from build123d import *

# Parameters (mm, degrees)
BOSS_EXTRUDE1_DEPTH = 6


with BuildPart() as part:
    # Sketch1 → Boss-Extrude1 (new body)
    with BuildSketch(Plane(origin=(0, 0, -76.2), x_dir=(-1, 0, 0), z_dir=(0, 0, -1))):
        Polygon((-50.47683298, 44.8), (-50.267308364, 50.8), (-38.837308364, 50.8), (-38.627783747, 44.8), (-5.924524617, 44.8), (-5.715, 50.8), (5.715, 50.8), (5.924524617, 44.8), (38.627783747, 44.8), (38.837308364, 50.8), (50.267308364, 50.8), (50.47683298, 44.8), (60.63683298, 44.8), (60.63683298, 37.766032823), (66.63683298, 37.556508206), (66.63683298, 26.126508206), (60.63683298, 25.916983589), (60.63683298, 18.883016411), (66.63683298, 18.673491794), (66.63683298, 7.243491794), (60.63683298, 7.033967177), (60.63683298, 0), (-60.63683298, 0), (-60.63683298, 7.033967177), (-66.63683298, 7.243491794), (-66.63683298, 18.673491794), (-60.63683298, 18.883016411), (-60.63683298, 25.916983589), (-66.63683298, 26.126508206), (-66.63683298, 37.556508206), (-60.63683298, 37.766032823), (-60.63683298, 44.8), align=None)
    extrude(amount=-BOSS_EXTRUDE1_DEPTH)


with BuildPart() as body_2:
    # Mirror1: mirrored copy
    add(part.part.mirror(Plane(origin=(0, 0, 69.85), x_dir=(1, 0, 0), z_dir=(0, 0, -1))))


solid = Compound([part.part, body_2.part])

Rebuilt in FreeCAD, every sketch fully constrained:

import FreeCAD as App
import Part
import Sketcher
from FreeCAD import Vector
Q = App.Units.Quantity


def add_polygon(sketch, points):
    """Adds a closed chain of lines whose ends are joined by coincident constraints."""
    first, n = sketch.GeometryCount, len(points)
    for a, b in zip(points, points[1:] + points[:1]):
        sketch.addGeometry(Part.LineSegment(App.Vector(*a, 0), App.Vector(*b, 0)), False)
    for i in range(n):
        sketch.addConstraint(Sketcher.Constraint("Coincident", first + i, 2, first + (i + 1) % n, 1))

doc = App.newDocument("Part")
body = doc.addObject("PartDesign::Body", "Body")

sketch1 = doc.addObject("Sketcher::SketchObject", "Sketch")
body.addObject(sketch1)
sketch1.AttachmentSupport = (doc.XY_Plane, [""])
sketch1.MapMode = "FlatFace"
sketch1.AttachmentOffset = App.Placement(Vector(0, 0, -3 * 25.4), App.Rotation())
add_polygon(sketch1, [(50, 51), (50, 45), (61, 45), (61, 38), (67, 38), (67, 26), (61, 26), (61, 19), (67, 19), (67, 7), (61, 7), (61, 0), (-61, 0), (-61, 7), (-67, 7), (-67, 19), (-61, 19), (-61, 26), (-67, 26), (-67, 38), (-61, 38), (-61, 45), (-50, 45), (-50, 51), (-39, 51), (-39, 45), (-6, 45), (-6, 51), (6, 51), (6, 45), (39, 45), (39, 51)])
sketch1.addConstraint([
    Sketcher.Constraint("Horizontal", 1),
    Sketcher.Constraint("Vertical", 2),
    Sketcher.Constraint("Vertical", 4),
    Sketcher.Constraint("Vertical", 6),
    Sketcher.Constraint("Vertical", 8),
    Sketcher.Constraint("Vertical", 10),
    Sketcher.Constraint("Horizontal", 11),
    Sketcher.Constraint("Vertical", 12),
    Sketcher.Constraint("Vertical", 14),
    Sketcher.Constraint("Vertical", 16),
    Sketcher.Constraint("Vertical", 18),
    Sketcher.Constraint("Vertical", 20),
    Sketcher.Constraint("Horizontal", 21),
    Sketcher.Constraint("Horizontal", 23),
    Sketcher.Constraint("Horizontal", 25),
    Sketcher.Constraint("Horizontal", 27),
    Sketcher.Constraint("Horizontal", 29),
    Sketcher.Constraint("Horizontal", 31),
    Sketcher.Constraint("Symmetric", 10, 2, 11, 2, -1, 1),
    Sketcher.Constraint("Symmetric", 8, 2, 13, 2, -2),
    Sketcher.Constraint("Symmetric", 6, 2, 15, 2, -2),
    Sketcher.Constraint("Symmetric", 4, 2, 17, 2, -2),
    Sketcher.Constraint("Symmetric", 2, 2, 19, 2, -2),
    Sketcher.Constraint("Symmetric", 0, 2, 21, 2, -2),
    Sketcher.Constraint("Symmetric", 25, 2, 28, 2, -2),
    Sketcher.Constraint("Symmetric", 23, 2, 30, 2, -2),
    Sketcher.Constraint("Perpendicular", 0, 5),
    Sketcher.Constraint("Parallel", 3, 7),
    Sketcher.Constraint("Parallel", 5, 9),
    Sketcher.Constraint("Parallel", 7, 13),
    Sketcher.Constraint("Parallel", 9, 15),
    Sketcher.Constraint("Parallel", 13, 17),
    Sketcher.Constraint("Parallel", 15, 19),
    Sketcher.Constraint("Perpendicular", 17, 22),
    Sketcher.Constraint("Perpendicular", 19, 24),
    Sketcher.Constraint("Parallel", 22, 26),
    Sketcher.Constraint("Parallel", 24, 28),
    Sketcher.Constraint("Parallel", 26, 30),
    Sketcher.Constraint("Horizontal", 9, 2, 12, 2),
    Sketcher.Constraint("Horizontal", 21, 2, 24, 2),
    Sketcher.Constraint("Horizontal", 23, 2, 26, 2),
    Sketcher.Constraint("Vertical", 2, 2, 5, 2),
    Sketcher.Constraint("Vertical", 4, 2, 7, 2),
    Sketcher.Constraint("Vertical", 6, 2, 9, 2),
    Sketcher.Constraint("Equal", 23, 27),
    Sketcher.Constraint("Equal", 31, 4),
    Sketcher.Constraint("Equal", 2, 6),
    Sketcher.Constraint("Equal", 4, 8),
    Sketcher.Constraint("Equal", 6, 10),
    Sketcher.Constraint("Equal", 0, 3),
    Sketcher.Constraint("DistanceX", 1, 1, 1, 2, Q("0.4 in")),
    Sketcher.Constraint("DistanceY", -1, 1, 22, 2, Q("2 in")),
    Sketcher.Constraint("Angle", 0, Q("-88 deg")),
    Sketcher.Constraint("DistanceX", 23, 1, 23, 2, Q("0.45 in")),
    Sketcher.Constraint("DistanceX", 25, 1, 25, 2, Q("32.703259 mm")),
    Sketcher.Constraint("DistanceY", -1, 1, 0, 2, Q("44.8 mm")),
])
pad1 = doc.addObject("PartDesign::Pad", "Pad")
body.addObject(pad1)
pad1.Profile = sketch1
pad1.Length = 6
body2 = doc.addObject("PartDesign::Body", "Body001")
doc.recompute()

mirroring = doc.addObject("Part::Mirroring", "Mirroring")
mirroring.Source = body
mirroring.Base = Vector(0, 0, 69.85)
mirroring.Normal = Vector(0, 0, -1)
body2.BaseFeature = mirroring
doc.recompute()
mirroring.Visibility = False

doc.recompute()
